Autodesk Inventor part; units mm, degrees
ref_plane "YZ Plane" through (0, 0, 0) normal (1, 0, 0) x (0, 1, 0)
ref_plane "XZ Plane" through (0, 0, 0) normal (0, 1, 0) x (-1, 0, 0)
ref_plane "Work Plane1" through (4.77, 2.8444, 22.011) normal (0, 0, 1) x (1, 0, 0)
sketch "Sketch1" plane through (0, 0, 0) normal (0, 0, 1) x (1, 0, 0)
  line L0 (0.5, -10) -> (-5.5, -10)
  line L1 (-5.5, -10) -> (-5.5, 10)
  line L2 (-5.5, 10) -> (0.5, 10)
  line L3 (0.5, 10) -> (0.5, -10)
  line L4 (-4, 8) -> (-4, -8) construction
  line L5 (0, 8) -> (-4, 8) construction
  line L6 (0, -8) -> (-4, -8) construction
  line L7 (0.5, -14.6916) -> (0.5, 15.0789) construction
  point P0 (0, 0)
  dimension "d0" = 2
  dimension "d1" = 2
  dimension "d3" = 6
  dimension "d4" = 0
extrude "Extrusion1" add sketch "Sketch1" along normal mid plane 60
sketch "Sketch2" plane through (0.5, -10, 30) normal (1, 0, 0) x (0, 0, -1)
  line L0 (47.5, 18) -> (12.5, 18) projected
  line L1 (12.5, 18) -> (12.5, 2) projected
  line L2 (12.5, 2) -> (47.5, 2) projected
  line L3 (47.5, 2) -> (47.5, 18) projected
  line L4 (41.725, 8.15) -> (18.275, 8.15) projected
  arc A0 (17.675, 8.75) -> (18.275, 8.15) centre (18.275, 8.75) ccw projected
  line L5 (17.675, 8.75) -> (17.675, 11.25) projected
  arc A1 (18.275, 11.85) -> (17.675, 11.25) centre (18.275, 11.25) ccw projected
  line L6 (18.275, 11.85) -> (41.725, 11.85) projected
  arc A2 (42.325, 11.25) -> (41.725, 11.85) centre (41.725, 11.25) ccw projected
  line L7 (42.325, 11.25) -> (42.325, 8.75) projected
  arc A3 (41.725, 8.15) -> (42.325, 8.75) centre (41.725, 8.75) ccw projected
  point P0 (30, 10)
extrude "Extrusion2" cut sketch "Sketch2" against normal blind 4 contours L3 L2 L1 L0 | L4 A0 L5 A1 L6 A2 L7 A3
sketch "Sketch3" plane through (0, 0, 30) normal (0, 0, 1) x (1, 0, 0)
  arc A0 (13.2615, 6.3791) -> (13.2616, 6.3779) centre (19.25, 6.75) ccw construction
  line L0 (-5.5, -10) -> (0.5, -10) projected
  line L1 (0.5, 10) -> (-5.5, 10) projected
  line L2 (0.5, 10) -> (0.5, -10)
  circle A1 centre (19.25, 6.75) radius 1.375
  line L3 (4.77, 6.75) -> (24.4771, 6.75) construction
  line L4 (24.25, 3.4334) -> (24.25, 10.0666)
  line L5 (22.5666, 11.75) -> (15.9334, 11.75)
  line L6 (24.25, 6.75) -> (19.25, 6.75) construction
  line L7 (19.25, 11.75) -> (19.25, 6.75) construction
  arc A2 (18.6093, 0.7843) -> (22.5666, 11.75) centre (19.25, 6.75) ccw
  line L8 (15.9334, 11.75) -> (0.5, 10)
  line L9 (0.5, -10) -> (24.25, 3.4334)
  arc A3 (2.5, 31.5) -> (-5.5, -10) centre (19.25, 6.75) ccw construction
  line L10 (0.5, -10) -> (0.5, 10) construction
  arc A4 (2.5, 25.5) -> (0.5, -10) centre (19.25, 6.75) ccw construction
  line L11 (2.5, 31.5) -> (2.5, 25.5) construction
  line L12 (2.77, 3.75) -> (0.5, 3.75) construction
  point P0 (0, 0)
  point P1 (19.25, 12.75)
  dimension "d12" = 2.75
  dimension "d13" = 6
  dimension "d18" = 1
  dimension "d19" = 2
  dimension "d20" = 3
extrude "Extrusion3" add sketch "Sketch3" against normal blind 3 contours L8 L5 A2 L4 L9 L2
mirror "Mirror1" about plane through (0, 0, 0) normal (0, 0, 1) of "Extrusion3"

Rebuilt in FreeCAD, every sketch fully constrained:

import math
import FreeCAD as App
import Part
import Sketcher
Q = App.Units.Quantity


def add_polygon(sketch, points):
    """Adds a closed chain of lines whose ends are joined by coincident constraints."""
    first, n = sketch.GeometryCount, len(points)
    for a, b in zip(points, points[1:] + points[:1]):
        sketch.addGeometry(Part.LineSegment(App.Vector(*a, 0), App.Vector(*b, 0)), False)
    for i in range(n):
        sketch.addConstraint(Sketcher.Constraint("Coincident", first + i, 2, first + (i + 1) % n, 1))

doc = App.newDocument("Part")
body = doc.addObject("PartDesign::Body", "Body")

sketch1 = body.newObject("Sketcher::SketchObject", "Sketch")
sketch1.AttachmentSupport = (doc.getObject("XY_Plane"), [""])
sketch1.MapMode = "FlatFace"
add_polygon(sketch1, [(-5.5, -10), (0.5, -10), (0.5, 10), (-5.5, 10)])
sketch1.addConstraint([
    Sketcher.Constraint("Horizontal", 0),
    Sketcher.Constraint("Vertical", 1),
    Sketcher.Constraint("Horizontal", 2),
    Sketcher.Constraint("Vertical", 3),
    Sketcher.Constraint("DistanceX", 0, 1, 0, 2, Q("6 mm")),
    Sketcher.Constraint("DistanceY", 1, 1, 1, 2, Q("20 mm")),
    Sketcher.Constraint("DistanceY", 0, 2, -1, 1, Q("10 mm")),
    Sketcher.Constraint("DistanceX", -1, 1, 0, 2, Q("0.5 mm")),
])
pad1 = body.newObject("PartDesign::Pad", "Pad")
pad1.Profile = sketch1
pad1.Length = 60
pad1.Midplane = True

sketch2 = body.newObject("Sketcher::SketchObject", "Sketch001")
sketch2.AttachmentSupport = (doc.getObject("YZ_Plane"), [""])
sketch2.MapMode = "FlatFace"
sketch2.AttachmentOffset = App.Placement(App.Vector(0, 0, 0.5), App.Rotation())
add_polygon(sketch2, [(-8, -17.5), (8, -17.5), (8, 17.5), (-8, 17.5)])
sketch2.addConstraint([
    Sketcher.Constraint("Horizontal", 0),
    Sketcher.Constraint("Vertical", 1),
    Sketcher.Constraint("Horizontal", 2),
    Sketcher.Constraint("Vertical", 3),
    Sketcher.Constraint("Symmetric", 0, 2, 2, 2, -1, 1),
    Sketcher.Constraint("DistanceX", 0, 1, 0, 2, Q("16 mm")),
    Sketcher.Constraint("DistanceY", 1, 1, 1, 2, Q("35 mm")),
])
pocket1 = body.newObject("PartDesign::Pocket", "Pocket")
pocket1.Profile = sketch2
pocket1.Length = 4

sketch3 = body.newObject("Sketcher::SketchObject", "Sketch002")
sketch3.AttachmentSupport = (doc.getObject("XY_Plane"), [""])
sketch3.MapMode = "FlatFace"
sketch3.AttachmentOffset = App.Placement(App.Vector(0, 0, 30), App.Rotation())
sketch3.addGeometry([
    Part.LineSegment(App.Vector(15.9334, 11.75, 0), App.Vector(0.5, 10, 0)),
    Part.LineSegment(App.Vector(0.5, 10, 0), App.Vector(0.5, -10, 0)),
    Part.LineSegment(App.Vector(0.5, -10, 0), App.Vector(24.25, 3.4334, 0)),
    Part.LineSegment(App.Vector(24.25, 3.4334, 0), App.Vector(24.25, 10.0666, 0)),
    Part.ArcOfCircle(Part.Circle(App.Vector(19.25, 6.75, 0), App.Vector(0, 0, 1), 6.000006), math.radians(33.557112), math.radians(56.442888)),
    Part.LineSegment(App.Vector(22.5666, 11.75, 0), App.Vector(15.9334, 11.75, 0)),
    Part.Circle(App.Vector(19.25, 6.75, 0), App.Vector(0, 0, 1), 1.375),
], False)
sketch3.addConstraint([
    Sketcher.Constraint("Coincident", 0, 2, 1, 1),
    Sketcher.Constraint("Coincident", 1, 2, 2, 1),
    Sketcher.Constraint("Coincident", 2, 2, 3, 1),
    Sketcher.Constraint("Coincident", 3, 2, 4, 1),
    Sketcher.Constraint("Coincident", 4, 2, 5, 1),
    Sketcher.Constraint("Coincident", 5, 2, 0, 1),
    Sketcher.Constraint("Vertical", 1),
    Sketcher.Constraint("Vertical", 3),
    Sketcher.Constraint("Horizontal", 5),
    Sketcher.Constraint("Coincident", 6, 3, 4, 3),
    Sketcher.Constraint("Equal", 5, 3),
    Sketcher.Constraint("Radius", 4, Q("6 mm")),
    Sketcher.Constraint("Diameter", 6, Q("2.75 mm")),
    Sketcher.Constraint("DistanceY", 1, 2, 1, 1, Q("20 mm")),
    Sketcher.Constraint("DistanceY", -1, 1, 0, 2, Q("10 mm")),
    Sketcher.Constraint("DistanceX", 4, 3, 2, 2, Q("5 mm")),
    Sketcher.Constraint("DistanceY", 4, 3, 4, 2, Q("5 mm")),
    Sketcher.Constraint("DistanceX", -1, 1, 0, 2, Q("0.5 mm")),
    Sketcher.Constraint("Angle", 0, Q("-173.5308 deg")),
    Sketcher.Constraint("DistanceX", -1, 1, 4, 3, Q("19.25 mm")),
    Sketcher.Constraint("DistanceY", -1, 1, 4, 3, Q("6.75 mm")),
])
pad2 = body.newObject("PartDesign::Pad", "Pad001")
pad2.Profile = sketch3
pad2.Length = 3
pad2.Reversed = True
doc.recompute()

mirrored = body.newObject("PartDesign::Mirrored", "Mirrored")
mirrored.Originals = [pad2]
mirrored.MirrorPlane = (doc.getObject("XY_Plane"), [""])
body.Tip = mirrored

doc.recompute()
